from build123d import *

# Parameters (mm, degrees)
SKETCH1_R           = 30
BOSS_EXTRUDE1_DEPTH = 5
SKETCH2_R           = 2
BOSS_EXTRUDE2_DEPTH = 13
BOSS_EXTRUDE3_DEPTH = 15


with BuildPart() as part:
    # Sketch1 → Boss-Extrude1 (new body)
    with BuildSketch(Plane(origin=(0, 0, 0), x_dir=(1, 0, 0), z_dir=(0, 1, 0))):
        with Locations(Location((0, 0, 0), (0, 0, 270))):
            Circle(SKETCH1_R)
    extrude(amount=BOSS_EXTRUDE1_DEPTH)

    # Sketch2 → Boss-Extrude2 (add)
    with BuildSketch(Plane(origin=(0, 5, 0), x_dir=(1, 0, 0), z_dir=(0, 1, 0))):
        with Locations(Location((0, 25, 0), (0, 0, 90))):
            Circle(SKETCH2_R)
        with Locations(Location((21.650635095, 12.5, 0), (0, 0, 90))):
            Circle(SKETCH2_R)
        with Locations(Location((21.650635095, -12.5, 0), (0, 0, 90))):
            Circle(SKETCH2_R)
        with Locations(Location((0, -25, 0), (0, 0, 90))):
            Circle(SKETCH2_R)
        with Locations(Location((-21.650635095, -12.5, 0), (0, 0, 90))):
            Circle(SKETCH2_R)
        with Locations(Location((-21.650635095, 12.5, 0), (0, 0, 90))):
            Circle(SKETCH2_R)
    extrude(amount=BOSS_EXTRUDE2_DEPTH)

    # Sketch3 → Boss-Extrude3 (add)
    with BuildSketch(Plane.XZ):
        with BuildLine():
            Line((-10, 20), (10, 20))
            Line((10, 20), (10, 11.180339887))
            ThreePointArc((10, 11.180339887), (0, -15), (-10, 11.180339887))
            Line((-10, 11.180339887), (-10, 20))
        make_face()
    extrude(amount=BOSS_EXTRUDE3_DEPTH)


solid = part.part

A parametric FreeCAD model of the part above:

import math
import FreeCAD as App
import Part
import Sketcher
Q = App.Units.Quantity

doc = App.newDocument("Part")
body = doc.addObject("PartDesign::Body", "Body")

sketch1 = body.newObject("Sketcher::SketchObject", "Sketch")
sketch1.AttachmentSupport = (doc.getObject("XZ_Plane"), [""])
sketch1.MapMode = "FlatFace"
sketch1.addGeometry(Part.Circle(App.Vector(0, 0, 0), App.Vector(0, 0, 1), 30), False)
sketch1.addConstraint(Sketcher.Constraint("Coincident", 0, 3, -1, 1))
sketch1.addConstraint(Sketcher.Constraint("Diameter", 0, Q("60 mm")))
pad1 = body.newObject("PartDesign::Pad", "Pad")
pad1.Profile = sketch1
pad1.Length = 5
pad1.Reversed = True

sketch2 = body.newObject("Sketcher::SketchObject", "Sketch001")
sketch2.AttachmentSupport = (doc.getObject("XZ_Plane"), [""])
sketch2.MapMode = "FlatFace"
sketch2.AttachmentOffset = App.Placement(App.Vector(0, 0, -5), App.Rotation())
sketch2.addGeometry(Part.Circle(App.Vector(0, -25, 0), App.Vector(0, 0, 1), 2), False)
sketch2.addGeometry(Part.Circle(App.Vector(21.7, -12.5, 0), App.Vector(0, 0, 1), 2), False)
sketch2.addGeometry(Part.Circle(App.Vector(21.7, 12.5, 0), App.Vector(0, 0, 1), 2), False)
sketch2.addGeometry(Part.Circle(App.Vector(0, 25, 0), App.Vector(0, 0, 1), 2), False)
sketch2.addGeometry(Part.Circle(App.Vector(-21.7, 12.5, 0), App.Vector(0, 0, 1), 2), False)
sketch2.addGeometry(Part.Circle(App.Vector(-21.7, -12.5, 0), App.Vector(0, 0, 1), 2), False)
sketch2.addConstraint(Sketcher.Constraint("Equal", 0, 1))
sketch2.addConstraint(Sketcher.Constraint("Equal", 1, 2))
sketch2.addConstraint(Sketcher.Constraint("Equal", 2, 3))
sketch2.addConstraint(Sketcher.Constraint("Equal", 3, 4))
sketch2.addConstraint(Sketcher.Constraint("Equal", 4, 5))
sketch2.addConstraint(Sketcher.Constraint("Symmetric", 0, 3, 3, 3, -1, 1))
sketch2.addConstraint(Sketcher.Constraint("Symmetric", 1, 3, 4, 3, -1, 1))
sketch2.addConstraint(Sketcher.Constraint("Symmetric", 2, 3, 5, 3, -1, 1))
sketch2.addConstraint(Sketcher.Constraint("Symmetric", 2, 3, 4, 3, -2))
sketch2.addConstraint(Sketcher.Constraint("PointOnObject", 0, 3, -2))
sketch2.addConstraint(Sketcher.Constraint("Diameter", 0, Q("4 mm")))
sketch2.addConstraint(Sketcher.Constraint("DistanceY", 0, 3, -1, 1, Q("25 mm")))
sketch2.addConstraint(Sketcher.Constraint("DistanceY", 1, 3, 2, 3, Q("25 mm")))
sketch2.addConstraint(Sketcher.Constraint("DistanceX", 4, 3, 2, 3, Q("43.30127 mm")))
pad2 = body.newObject("PartDesign::Pad", "Pad001")
pad2.Profile = sketch2
pad2.Length = 13
pad2.Reversed = True

sketch3 = body.newObject("Sketcher::SketchObject", "Sketch002")
sketch3.AttachmentSupport = (doc.getObject("XZ_Plane"), [""])
sketch3.MapMode = "FlatFace"
sketch3.addGeometry(Part.LineSegment(App.Vector(10, 20, 0), App.Vector(-10, 20, 0)), False)
sketch3.addGeometry(Part.LineSegment(App.Vector(-10, 20, 0), App.Vector(-10, 11, 0)), False)
sketch3.addGeometry(Part.ArcOfCircle(Part.Circle(App.Vector(0, 0, 0), App.Vector(0, 0, 1), 15), math.radians(132), math.radians(408)), False)
sketch3.addGeometry(Part.LineSegment(App.Vector(10, 11, 0), App.Vector(10, 20, 0)), False)
sketch3.addConstraint(Sketcher.Constraint("Coincident", 0, 2, 1, 1))
sketch3.addConstraint(Sketcher.Constraint("Coincident", 1, 2, 2, 1))
sketch3.addConstraint(Sketcher.Constraint("Coincident", 2, 2, 3, 1))
sketch3.addConstraint(Sketcher.Constraint("Coincident", 3, 2, 0, 1))
sketch3.addConstraint(Sketcher.Constraint("Horizontal", 0))
sketch3.addConstraint(Sketcher.Constraint("Vertical", 1))
sketch3.addConstraint(Sketcher.Constraint("Vertical", 3))
sketch3.addConstraint(Sketcher.Constraint("Coincident", 2, 3, -1, 1))
sketch3.addConstraint(Sketcher.Constraint("Horizontal", 1, 2, 2, 2))
sketch3.addConstraint(Sketcher.Constraint("Radius", 2, Q("15 mm")))
sketch3.addConstraint(Sketcher.Constraint("DistanceX", 0, 2, 0, 1, Q("20 mm")))
sketch3.addConstraint(Sketcher.Constraint("DistanceY", -1, 1, 0, 2, Q("20 mm")))
pad3 = body.newObject("PartDesign::Pad", "Pad002")
pad3.Profile = sketch3
pad3.Length = 15

doc.recompute()
